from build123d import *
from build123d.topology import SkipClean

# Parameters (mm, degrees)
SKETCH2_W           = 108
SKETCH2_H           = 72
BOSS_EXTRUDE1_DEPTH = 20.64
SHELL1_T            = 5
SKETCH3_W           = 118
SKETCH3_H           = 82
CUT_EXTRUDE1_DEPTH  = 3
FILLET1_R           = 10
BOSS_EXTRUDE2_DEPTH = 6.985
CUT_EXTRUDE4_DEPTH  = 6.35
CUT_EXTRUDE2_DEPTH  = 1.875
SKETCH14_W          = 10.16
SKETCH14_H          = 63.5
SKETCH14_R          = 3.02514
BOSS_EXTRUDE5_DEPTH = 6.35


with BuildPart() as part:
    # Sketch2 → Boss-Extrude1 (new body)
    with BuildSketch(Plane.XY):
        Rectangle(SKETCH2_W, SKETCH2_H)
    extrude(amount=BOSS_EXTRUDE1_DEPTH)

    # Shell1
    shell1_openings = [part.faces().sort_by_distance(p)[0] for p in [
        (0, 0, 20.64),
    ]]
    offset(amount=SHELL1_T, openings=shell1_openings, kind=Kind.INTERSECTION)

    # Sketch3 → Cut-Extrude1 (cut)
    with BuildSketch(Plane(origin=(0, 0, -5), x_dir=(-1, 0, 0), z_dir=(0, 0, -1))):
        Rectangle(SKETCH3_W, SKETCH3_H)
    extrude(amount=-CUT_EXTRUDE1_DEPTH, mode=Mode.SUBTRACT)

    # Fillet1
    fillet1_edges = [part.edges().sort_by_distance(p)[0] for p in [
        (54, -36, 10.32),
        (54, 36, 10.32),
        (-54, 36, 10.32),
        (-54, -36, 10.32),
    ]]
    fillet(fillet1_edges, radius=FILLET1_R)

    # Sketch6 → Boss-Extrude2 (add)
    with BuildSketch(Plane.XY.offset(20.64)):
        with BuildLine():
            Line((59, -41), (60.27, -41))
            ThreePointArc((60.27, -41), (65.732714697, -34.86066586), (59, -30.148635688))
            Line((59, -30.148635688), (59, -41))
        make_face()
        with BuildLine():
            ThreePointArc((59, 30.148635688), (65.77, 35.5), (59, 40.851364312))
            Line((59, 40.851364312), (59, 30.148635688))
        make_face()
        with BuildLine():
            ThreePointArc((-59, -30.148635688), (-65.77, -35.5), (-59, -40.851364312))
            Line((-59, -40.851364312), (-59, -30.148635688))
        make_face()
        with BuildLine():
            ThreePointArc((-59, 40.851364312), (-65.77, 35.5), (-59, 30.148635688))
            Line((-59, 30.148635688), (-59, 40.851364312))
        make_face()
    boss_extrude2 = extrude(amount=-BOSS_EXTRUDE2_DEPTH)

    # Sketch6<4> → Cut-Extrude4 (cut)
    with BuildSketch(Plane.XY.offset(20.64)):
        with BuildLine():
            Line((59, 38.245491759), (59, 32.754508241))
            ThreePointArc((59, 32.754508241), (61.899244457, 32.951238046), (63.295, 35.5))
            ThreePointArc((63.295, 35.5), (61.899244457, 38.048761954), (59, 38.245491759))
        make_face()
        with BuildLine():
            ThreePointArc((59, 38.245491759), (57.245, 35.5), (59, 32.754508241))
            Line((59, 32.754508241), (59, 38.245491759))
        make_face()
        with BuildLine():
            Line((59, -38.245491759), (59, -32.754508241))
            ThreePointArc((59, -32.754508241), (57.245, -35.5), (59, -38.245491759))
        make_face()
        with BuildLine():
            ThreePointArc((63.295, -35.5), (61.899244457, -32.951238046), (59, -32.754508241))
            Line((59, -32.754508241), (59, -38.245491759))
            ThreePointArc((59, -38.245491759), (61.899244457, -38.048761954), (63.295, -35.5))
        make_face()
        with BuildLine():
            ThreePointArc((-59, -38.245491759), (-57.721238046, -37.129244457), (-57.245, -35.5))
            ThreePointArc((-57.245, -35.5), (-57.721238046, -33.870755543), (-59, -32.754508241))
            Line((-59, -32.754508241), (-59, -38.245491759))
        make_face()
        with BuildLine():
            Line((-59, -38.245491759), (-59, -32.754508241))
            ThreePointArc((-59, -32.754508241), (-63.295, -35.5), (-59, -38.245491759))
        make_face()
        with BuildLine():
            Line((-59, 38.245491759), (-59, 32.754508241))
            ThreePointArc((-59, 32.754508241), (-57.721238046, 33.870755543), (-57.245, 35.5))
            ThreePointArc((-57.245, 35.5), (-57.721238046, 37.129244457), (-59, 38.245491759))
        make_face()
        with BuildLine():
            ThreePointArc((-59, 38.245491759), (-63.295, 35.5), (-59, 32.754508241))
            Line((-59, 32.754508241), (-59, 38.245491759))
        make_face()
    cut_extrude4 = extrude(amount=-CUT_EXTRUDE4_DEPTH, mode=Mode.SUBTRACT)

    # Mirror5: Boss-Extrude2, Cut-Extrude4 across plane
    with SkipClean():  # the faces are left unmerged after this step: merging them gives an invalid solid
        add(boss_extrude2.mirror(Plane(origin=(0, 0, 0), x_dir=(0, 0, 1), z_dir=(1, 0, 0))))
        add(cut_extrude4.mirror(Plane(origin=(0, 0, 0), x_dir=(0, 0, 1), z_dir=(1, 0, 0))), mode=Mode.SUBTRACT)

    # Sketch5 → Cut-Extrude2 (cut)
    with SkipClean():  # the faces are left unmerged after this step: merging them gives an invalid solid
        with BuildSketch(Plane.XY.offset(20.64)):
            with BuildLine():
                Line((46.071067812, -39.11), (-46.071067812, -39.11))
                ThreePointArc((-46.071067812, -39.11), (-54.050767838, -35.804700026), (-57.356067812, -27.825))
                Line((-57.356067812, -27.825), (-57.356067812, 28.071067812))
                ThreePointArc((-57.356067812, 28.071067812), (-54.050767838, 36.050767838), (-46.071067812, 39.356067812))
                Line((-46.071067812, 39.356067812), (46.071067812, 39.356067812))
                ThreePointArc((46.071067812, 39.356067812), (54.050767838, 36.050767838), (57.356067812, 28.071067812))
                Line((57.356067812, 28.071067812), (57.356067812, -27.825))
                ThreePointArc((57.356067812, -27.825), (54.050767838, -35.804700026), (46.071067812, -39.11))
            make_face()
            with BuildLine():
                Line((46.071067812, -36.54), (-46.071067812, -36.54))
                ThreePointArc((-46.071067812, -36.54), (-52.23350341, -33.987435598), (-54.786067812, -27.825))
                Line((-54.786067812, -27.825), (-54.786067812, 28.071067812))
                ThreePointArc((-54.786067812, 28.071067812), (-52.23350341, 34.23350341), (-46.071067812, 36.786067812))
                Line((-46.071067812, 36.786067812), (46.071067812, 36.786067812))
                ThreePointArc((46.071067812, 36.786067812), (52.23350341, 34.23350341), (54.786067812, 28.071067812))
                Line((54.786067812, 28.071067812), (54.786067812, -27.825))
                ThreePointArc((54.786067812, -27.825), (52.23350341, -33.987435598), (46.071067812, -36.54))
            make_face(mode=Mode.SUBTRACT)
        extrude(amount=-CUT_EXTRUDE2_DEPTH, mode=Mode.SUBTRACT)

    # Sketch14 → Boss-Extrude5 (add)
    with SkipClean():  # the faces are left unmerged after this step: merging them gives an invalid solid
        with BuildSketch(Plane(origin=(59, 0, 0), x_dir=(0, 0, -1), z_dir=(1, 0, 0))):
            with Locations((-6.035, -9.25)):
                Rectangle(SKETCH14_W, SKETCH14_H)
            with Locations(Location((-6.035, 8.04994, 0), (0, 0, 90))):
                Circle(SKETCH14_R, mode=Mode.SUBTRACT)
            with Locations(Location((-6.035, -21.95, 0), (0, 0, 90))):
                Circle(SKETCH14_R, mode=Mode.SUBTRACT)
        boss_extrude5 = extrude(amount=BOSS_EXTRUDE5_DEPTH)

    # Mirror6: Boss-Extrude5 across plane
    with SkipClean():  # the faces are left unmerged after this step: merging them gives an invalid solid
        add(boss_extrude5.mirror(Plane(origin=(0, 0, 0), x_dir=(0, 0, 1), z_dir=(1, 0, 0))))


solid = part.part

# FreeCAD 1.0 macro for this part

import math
import FreeCAD as App
import Part
import Sketcher


def edges_at(feature, points):
    """Names of the edges that pass closest to the given points."""
    edges = feature.Shape.Edges
    near = lambda p: min(range(len(edges)), key=lambda i: edges[i].distToShape(Part.Vertex(*p))[0])
    return sorted({f"Edge{near(p) + 1}" for p in points})


def faces_at(feature, points):
    """Names of the faces that lie closest to the given points."""
    faces = feature.Shape.Faces
    near = lambda p: min(range(len(faces)), key=lambda i: faces[i].distToShape(Part.Vertex(*p))[0])
    return sorted({f"Face{near(p) + 1}" for p in points})


def add_polygon(sketch, points):
    """Adds a closed chain of lines whose ends are joined by coincident constraints."""
    first, n = sketch.GeometryCount, len(points)
    for a, b in zip(points, points[1:] + points[:1]):
        sketch.addGeometry(Part.LineSegment(App.Vector(*a, 0), App.Vector(*b, 0)), False)
    for i in range(n):
        sketch.addConstraint(Sketcher.Constraint("Coincident", first + i, 2, first + (i + 1) % n, 1))

doc = App.newDocument("Part")
body = doc.addObject("PartDesign::Body", "Body")

# Sketch on XY plane
sketch1 = doc.addObject("Sketcher::SketchObject", "Sketch")
body.addObject(sketch1)
sketch1.AttachmentSupport = (doc.XY_Plane, [""])
sketch1.MapMode = "FlatFace"
add_polygon(sketch1, [(-54, 36), (-54, -36), (54, -36), (54, 36)])  # lines 0-3
sketch1.addConstraint([
    Sketcher.Constraint("Vertical", 0),
    Sketcher.Constraint("Horizontal", 1),
    Sketcher.Constraint("Vertical", 2),
    Sketcher.Constraint("Horizontal", 3),
    Sketcher.Constraint("Symmetric", 0, 2, 2, 2, -1, 1),
    Sketcher.Constraint("DistanceX", 1, 1, 1, 2, 108.0),
    Sketcher.Constraint("DistanceY", 0, 2, 0, 1, 72.0),
])
pad1 = doc.addObject("PartDesign::Pad", "Pad")
body.addObject(pad1)
pad1.Profile = sketch1
pad1.Length = 20.64
doc.recompute()

thickness = doc.addObject("PartDesign::Thickness", "Thickness")
body.addObject(thickness)
thickness.Base = (pad1, faces_at(pad1, [(0, 0, 20.64)]))
thickness.Value = 5
thickness.Reversed = False
thickness.Join = "Intersection"

# Sketch on XY plane
sketch2 = doc.addObject("Sketcher::SketchObject", "Sketch001")
body.addObject(sketch2)
sketch2.AttachmentSupport = (doc.XY_Plane, [""])
sketch2.MapMode = "FlatFace"
sketch2.AttachmentOffset = App.Placement(App.Vector(0, 0, -5), App.Rotation())
add_polygon(sketch2, [(59, 41), (59, -41), (-59, -41), (-59, 41)])  # lines 0-3
sketch2.addConstraint([
    Sketcher.Constraint("Vertical", 0),
    Sketcher.Constraint("Horizontal", 1),
    Sketcher.Constraint("Vertical", 2),
    Sketcher.Constraint("Horizontal", 3),
    Sketcher.Constraint("Symmetric", 0, 2, 2, 2, -1, 1),
    Sketcher.Constraint("DistanceX", 1, 2, 1, 1, 118.0),
    Sketcher.Constraint("DistanceY", 0, 2, 0, 1, 82.0),
])
pocket1 = doc.addObject("PartDesign::Pocket", "Pocket")
body.addObject(pocket1)
pocket1.Profile = sketch2
pocket1.Length = 3
pocket1.Reversed = True
doc.recompute()

fillet = doc.addObject("PartDesign::Fillet", "Fillet")
body.addObject(fillet)
fillet.Base = (pocket1, edges_at(pocket1, [
    (54, -36, 10.32),
    (54, 36, 10.32),
    (-54, 36, 10.32),
    (-54, -36, 10.32),
]))
fillet.Radius = 10

# Sketch on XY plane
sketch3 = doc.addObject("Sketcher::SketchObject", "Sketch002")
body.addObject(sketch3)
sketch3.AttachmentSupport = (doc.XY_Plane, [""])
sketch3.MapMode = "FlatFace"
sketch3.AttachmentOffset = App.Placement(App.Vector(0, 0, 20.64), App.Rotation())
sketch3.addGeometry([
    Part.LineSegment(App.Vector(59, -41, 0), App.Vector(60.3, -41, 0)),  # 0
    Part.ArcOfCircle(Part.Circle(App.Vector(60.3, -35.5, 0), App.Vector(0, 0, 1), 5.5), math.radians(-90), math.radians(103)),  # 1
    Part.LineSegment(App.Vector(59, -30.1, 0), App.Vector(59, -41, 0)),  # 2
    Part.ArcOfCircle(Part.Circle(App.Vector(60.3, 35.5, 0), App.Vector(0, 0, 1), 5.5), math.radians(-103), math.radians(103)),  # 3
    Part.LineSegment(App.Vector(59, 40.9, 0), App.Vector(59, 30.1, 0)),  # 4
    Part.ArcOfCircle(Part.Circle(App.Vector(-60.3, -35.5, 0), App.Vector(0, 0, 1), 5.5), math.radians(77), math.radians(283)),  # 5
    Part.LineSegment(App.Vector(-59, -40.9, 0), App.Vector(-59, -30.1, 0)),  # 6
    Part.ArcOfCircle(Part.Circle(App.Vector(-60.3, 35.5, 0), App.Vector(0, 0, 1), 5.5), math.radians(77), math.radians(283)),  # 7
    Part.LineSegment(App.Vector(-59, 30.1, 0), App.Vector(-59, 40.9, 0)),  # 8
], False)
sketch3.addConstraint([
    Sketcher.Constraint("Tangent", 0, 2, 1, 1),
    Sketcher.Constraint("Coincident", 1, 2, 2, 1),
    Sketcher.Constraint("Coincident", 2, 2, 0, 1),
    Sketcher.Constraint("Coincident", 3, 1, 4, 2),
    Sketcher.Constraint("Coincident", 4, 1, 3, 2),
    Sketcher.Constraint("Coincident", 5, 1, 6, 2),
    Sketcher.Constraint("Coincident", 6, 1, 5, 2),
    Sketcher.Constraint("Coincident", 7, 1, 8, 2),
    Sketcher.Constraint("Coincident", 8, 1, 7, 2),
    Sketcher.Constraint("Horizontal", 0),
    Sketcher.Constraint("Vertical", 2),
    Sketcher.Constraint("Vertical", 4),
    Sketcher.Constraint("Vertical", 6),
    Sketcher.Constraint("Vertical", 8),
    Sketcher.Constraint("Equal", 1, 3),
    Sketcher.Constraint("Equal", 3, 5),
    Sketcher.Constraint("Equal", 5, 7),
    Sketcher.Constraint("Symmetric", 3, 3, 5, 3, -1, 1),
    Sketcher.Constraint("Symmetric", 1, 3, 7, 3, -1, 1),
    Sketcher.Constraint("Symmetric", 1, 3, 5, 3, -2),
    Sketcher.Constraint("Horizontal", 1, 2, 5, 1),
    Sketcher.Constraint("Horizontal", 4, 1, 7, 1),
    Sketcher.Constraint("Vertical", 2, 2, 3, 1),
    Sketcher.Constraint("Radius", 1, 5.5),
    Sketcher.Constraint("DistanceY", 0, 2, -1, 1, 41.0),
    Sketcher.Constraint("DistanceX", -1, 1, 1, 2, 59.0),
    Sketcher.Constraint("DistanceX", 0, 1, 0, 2, 1.27),
])
pad2 = doc.addObject("PartDesign::Pad", "Pad001")
body.addObject(pad2)
pad2.Profile = sketch3
pad2.Length = 6.985
pad2.Reversed = True

# Sketch on XY plane
sketch4 = doc.addObject("Sketcher::SketchObject", "Sketch003")
body.addObject(sketch4)
sketch4.AttachmentSupport = (doc.XY_Plane, [""])
sketch4.MapMode = "FlatFace"
sketch4.AttachmentOffset = App.Placement(App.Vector(0, 0, 20.64), App.Rotation())
sketch4.addGeometry([
    Part.ArcOfCircle(Part.Circle(App.Vector(60.3, 35.5, 0), App.Vector(0, 0, 1), 3), math.radians(-115), math.radians(0)),  # 0
    Part.ArcOfCircle(Part.Circle(App.Vector(60.3, 35.5, 0), App.Vector(0, 0, 1), 3), math.radians(0), math.radians(115)),  # 1
    Part.ArcOfCircle(Part.Circle(App.Vector(60.3, 35.5, 0), App.Vector(0, 0, 1), 3), math.radians(115), math.radians(245)),  # 2
    Part.ArcOfCircle(Part.Circle(App.Vector(60.3, -35.5, 0), App.Vector(0, 0, 1), 3), math.radians(115), math.radians(245)),  # 3
    Part.ArcOfCircle(Part.Circle(App.Vector(60.3, -35.5, 0), App.Vector(0, 0, 1), 3), math.radians(-115), math.radians(0)),  # 4
    Part.ArcOfCircle(Part.Circle(App.Vector(60.3, -35.5, 0), App.Vector(0, 0, 1), 3), math.radians(0), math.radians(115)),  # 5
    Part.ArcOfCircle(Part.Circle(App.Vector(-60.3, -35.5, 0), App.Vector(0, 0, 1), 3), math.radians(-65), math.radians(0)),  # 6
    Part.ArcOfCircle(Part.Circle(App.Vector(-60.3, -35.5, 0), App.Vector(0, 0, 1), 3), math.radians(0), math.radians(65)),  # 7
    Part.ArcOfCircle(Part.Circle(App.Vector(-60.3, -35.5, 0), App.Vector(0, 0, 1), 3), math.radians(65), math.radians(295)),  # 8
    Part.ArcOfCircle(Part.Circle(App.Vector(-60.3, 35.5, 0), App.Vector(0, 0, 1), 3), math.radians(-65), math.radians(0)),  # 9
    Part.ArcOfCircle(Part.Circle(App.Vector(-60.3, 35.5, 0), App.Vector(0, 0, 1), 3), math.radians(0), math.radians(65)),  # 10
    Part.ArcOfCircle(Part.Circle(App.Vector(-60.3, 35.5, 0), App.Vector(0, 0, 1), 3), math.radians(65), math.radians(295)),  # 11
], False)
sketch4.addConstraint([
    Sketcher.Constraint("Tangent", 0, 2, 1, 1),
    Sketcher.Constraint("Tangent", 1, 2, 2, 1),
    Sketcher.Constraint("Tangent", 2, 2, 0, 1),
    Sketcher.Constraint("Tangent", 3, 2, 4, 1),
    Sketcher.Constraint("Tangent", 4, 2, 5, 1),
    Sketcher.Constraint("Tangent", 5, 2, 3, 1),
    Sketcher.Constraint("Tangent", 6, 2, 7, 1),
    Sketcher.Constraint("Tangent", 7, 2, 8, 1),
    Sketcher.Constraint("Tangent", 8, 2, 6, 1),
    Sketcher.Constraint("Tangent", 9, 2, 10, 1),
    Sketcher.Constraint("Tangent", 10, 2, 11, 1),
    Sketcher.Constraint("Tangent", 11, 2, 9, 1),
    Sketcher.Constraint("Equal", 2, 3),
    Sketcher.Constraint("Equal", 5, 6),
    Sketcher.Constraint("Equal", 8, 9),
    Sketcher.Constraint("Symmetric", 0, 3, 6, 3, -1, 1),
    Sketcher.Constraint("Symmetric", 3, 3, 9, 3, -1, 1),
    Sketcher.Constraint("Symmetric", 3, 3, 6, 3, -2),
    Sketcher.Constraint("Horizontal", 11, 3, 0, 2),
    Sketcher.Constraint("Horizontal", 8, 3, 4, 2),
    Sketcher.Constraint("Horizontal", 4, 2, 6, 2),
    Sketcher.Constraint("Horizontal", 5, 2, 7, 2),
    Sketcher.Constraint("Horizontal", 3, 2, 8, 2),
    Sketcher.Constraint("Horizontal", 0, 2, 9, 2),
    Sketcher.Constraint("Horizontal", 1, 2, 10, 2),
    Sketcher.Constraint("Horizontal", 2, 2, 11, 2),
    Sketcher.Constraint("Vertical", 1, 2, 2, 2),
    Sketcher.Constraint("Vertical", 2, 2, 3, 2),
    Sketcher.Constraint("Vertical", 3, 2, 5, 2),
    Sketcher.Constraint("DistanceX", -1, 1, 1, 2, 59.0),
    Sketcher.Constraint("Radius", 0, 3.025),
    Sketcher.Constraint("DistanceY", 3, 3, 0, 3, 71.0),
    Sketcher.Constraint("DistanceX", -1, 1, 0, 3, 60.27),
])
pocket2 = doc.addObject("PartDesign::Pocket", "Pocket001")
body.addObject(pocket2)
pocket2.Profile = sketch4
pocket2.Length = 6.35
doc.recompute()

mirrored = doc.addObject("PartDesign::Mirrored", "Mirrored")
body.addObject(mirrored)
mirrored.Originals = [pad2, pocket2]
mirrored.MirrorPlane = (doc.YZ_Plane, [""])
body.Tip = mirrored

# Sketch on XY plane
sketch5 = doc.addObject("Sketcher::SketchObject", "Sketch004")
body.addObject(sketch5)
sketch5.AttachmentSupport = (doc.XY_Plane, [""])
sketch5.MapMode = "FlatFace"
sketch5.AttachmentOffset = App.Placement(App.Vector(0, 0, 20.64), App.Rotation())
sketch5.addGeometry([
    Part.LineSegment(App.Vector(-46, -39, 0), App.Vector(46, -39, 0)),  # 0
    Part.ArcOfCircle(Part.Circle(App.Vector(46, -28, 0), App.Vector(0, 0, 1), 11), math.radians(-90), math.radians(0)),  # 1
    Part.LineSegment(App.Vector(57, -28, 0), App.Vector(57, 28, 0)),  # 2
    Part.ArcOfCircle(Part.Circle(App.Vector(46, 28, 0), App.Vector(0, 0, 1), 11), math.radians(0), math.radians(90)),  # 3
    Part.LineSegment(App.Vector(46, 39, 0), App.Vector(-46, 39, 0)),  # 4
    Part.ArcOfCircle(Part.Circle(App.Vector(-46, 28, 0), App.Vector(0, 0, 1), 11), math.radians(90), math.radians(180)),  # 5
    Part.LineSegment(App.Vector(-57, 28, 0), App.Vector(-57, -28, 0)),  # 6
    Part.ArcOfCircle(Part.Circle(App.Vector(-46, -28, 0), App.Vector(0, 0, 1), 11), math.radians(180), math.radians(270)),  # 7
    Part.LineSegment(App.Vector(46, -37, 0), App.Vector(-46, -37, 0)),  # 8
    Part.ArcOfCircle(Part.Circle(App.Vector(-46, -28, 0), App.Vector(0, 0, 1), 9), math.radians(180), math.radians(270)),  # 9
    Part.LineSegment(App.Vector(-55, -28, 0), App.Vector(-55, 28, 0)),  # 10
    Part.ArcOfCircle(Part.Circle(App.Vector(-46, 28, 0), App.Vector(0, 0, 1), 9), math.radians(90), math.radians(180)),  # 11
    Part.LineSegment(App.Vector(-46, 37, 0), App.Vector(46, 37, 0)),  # 12
    Part.ArcOfCircle(Part.Circle(App.Vector(46, 28, 0), App.Vector(0, 0, 1), 9), math.radians(0), math.radians(90)),  # 13
    Part.LineSegment(App.Vector(55, 28, 0), App.Vector(55, -28, 0)),  # 14
    Part.ArcOfCircle(Part.Circle(App.Vector(46, -28, 0), App.Vector(0, 0, 1), 9), math.radians(-90), math.radians(0)),  # 15
], False)
sketch5.addConstraint([
    Sketcher.Constraint("Tangent", 0, 2, 1, 1),
    Sketcher.Constraint("Tangent", 1, 2, 2, 1),
    Sketcher.Constraint("Tangent", 2, 2, 3, 1),
    Sketcher.Constraint("Tangent", 3, 2, 4, 1),
    Sketcher.Constraint("Tangent", 4, 2, 5, 1),
    Sketcher.Constraint("Tangent", 5, 2, 6, 1),
    Sketcher.Constraint("Tangent", 6, 2, 7, 1),
    Sketcher.Constraint("Tangent", 7, 2, 0, 1),
    Sketcher.Constraint("Tangent", 8, 2, 9, 2),
    Sketcher.Constraint("Tangent", 9, 1, 10, 1),
    Sketcher.Constraint("Tangent", 10, 2, 11, 2),
    Sketcher.Constraint("Tangent", 11, 1, 12, 1),
    Sketcher.Constraint("Tangent", 12, 2, 13, 2),
    Sketcher.Constraint("Tangent", 13, 1, 14, 1),
    Sketcher.Constraint("Tangent", 14, 2, 15, 2),
    Sketcher.Constraint("Tangent", 15, 1, 8, 1),
    Sketcher.Constraint("Horizontal", 0),
    Sketcher.Constraint("Vertical", 2),
    Sketcher.Constraint("Horizontal", 4),
    Sketcher.Constraint("Vertical", 6),
    Sketcher.Constraint("Horizontal", 8),
    Sketcher.Constraint("Vertical", 10),
    Sketcher.Constraint("Horizontal", 12),
    Sketcher.Constraint("Vertical", 14),
    Sketcher.Constraint("Coincident", 9, 3, 7, 3),
    Sketcher.Constraint("Coincident", 11, 3, 5, 3),
    Sketcher.Constraint("Coincident", 13, 3, 3, 3),
    Sketcher.Constraint("Equal", 1, 3),
    Sketcher.Constraint("Equal", 3, 5),
    Sketcher.Constraint("Equal", 5, 7),
    Sketcher.Constraint("Equal", 13, 15),
    Sketcher.Constraint("Radius", 1, 11.285),
    Sketcher.Constraint("Radius", 9, 8.715),
    Sketcher.Constraint("DistanceY", 0, 2, -1, 1, 39.11),
    Sketcher.Constraint("DistanceX", 0, 1, 0, 2, 92.142136),
    Sketcher.Constraint("DistanceY", 2, 1, 2, 2, 55.896068),
    Sketcher.Constraint("DistanceX", -1, 1, 1, 3, 46.071068),
])
pocket3 = doc.addObject("PartDesign::Pocket", "Pocket002")
body.addObject(pocket3)
pocket3.Profile = sketch5
pocket3.Length = 1.875

# Sketch on YZ plane
sketch6 = doc.addObject("Sketcher::SketchObject", "Sketch005")
body.addObject(sketch6)
sketch6.AttachmentSupport = (doc.YZ_Plane, [""])
sketch6.MapMode = "FlatFace"
sketch6.AttachmentOffset = App.Placement(App.Vector(0, 0, 59), App.Rotation())
add_polygon(sketch6, [(22.5, 11.1), (-41, 11.1), (-41, 1), (22.5, 1)])  # lines 0-3
sketch6.addGeometry(Part.Circle(App.Vector(-21.9, 6, 0), App.Vector(0, 0, 1), 3), False)  # 4
sketch6.addGeometry(Part.Circle(App.Vector(8, 6, 0), App.Vector(0, 0, 1), 3), False)  # 5
sketch6.addConstraint([
    Sketcher.Constraint("Horizontal", 0),
    Sketcher.Constraint("Vertical", 1),
    Sketcher.Constraint("Horizontal", 2),
    Sketcher.Constraint("Vertical", 3),
    Sketcher.Constraint("Equal", 4, 5),
    Sketcher.Constraint("Horizontal", 4, 3, 5, 3),
    Sketcher.Constraint("DistanceX", 0, 2, 0, 1, 63.5),
    Sketcher.Constraint("DistanceX", 0, 2, -1, 1, 41.0),
    Sketcher.Constraint("DistanceY", 1, 2, 1, 1, 10.16),
    Sketcher.Constraint("Diameter", 4, 6.05028),
    Sketcher.Constraint("DistanceX", 4, 3, -1, 1, 21.95),
    Sketcher.Constraint("DistanceY", 4, 3, 0, 2, 5.08),
    Sketcher.Constraint("DistanceY", -1, 1, 4, 3, 6.035),
    Sketcher.Constraint("DistanceX", -1, 1, 5, 3, 8.04994),
])
pad3 = doc.addObject("PartDesign::Pad", "Pad002")
body.addObject(pad3)
pad3.Profile = sketch6
pad3.Length = 6.35
doc.recompute()

mirrored2 = doc.addObject("PartDesign::Mirrored", "Mirrored001")
body.addObject(mirrored2)
mirrored2.Originals = [pad3]
mirrored2.MirrorPlane = (doc.YZ_Plane, [""])
body.Tip = mirrored2

doc.recompute()
